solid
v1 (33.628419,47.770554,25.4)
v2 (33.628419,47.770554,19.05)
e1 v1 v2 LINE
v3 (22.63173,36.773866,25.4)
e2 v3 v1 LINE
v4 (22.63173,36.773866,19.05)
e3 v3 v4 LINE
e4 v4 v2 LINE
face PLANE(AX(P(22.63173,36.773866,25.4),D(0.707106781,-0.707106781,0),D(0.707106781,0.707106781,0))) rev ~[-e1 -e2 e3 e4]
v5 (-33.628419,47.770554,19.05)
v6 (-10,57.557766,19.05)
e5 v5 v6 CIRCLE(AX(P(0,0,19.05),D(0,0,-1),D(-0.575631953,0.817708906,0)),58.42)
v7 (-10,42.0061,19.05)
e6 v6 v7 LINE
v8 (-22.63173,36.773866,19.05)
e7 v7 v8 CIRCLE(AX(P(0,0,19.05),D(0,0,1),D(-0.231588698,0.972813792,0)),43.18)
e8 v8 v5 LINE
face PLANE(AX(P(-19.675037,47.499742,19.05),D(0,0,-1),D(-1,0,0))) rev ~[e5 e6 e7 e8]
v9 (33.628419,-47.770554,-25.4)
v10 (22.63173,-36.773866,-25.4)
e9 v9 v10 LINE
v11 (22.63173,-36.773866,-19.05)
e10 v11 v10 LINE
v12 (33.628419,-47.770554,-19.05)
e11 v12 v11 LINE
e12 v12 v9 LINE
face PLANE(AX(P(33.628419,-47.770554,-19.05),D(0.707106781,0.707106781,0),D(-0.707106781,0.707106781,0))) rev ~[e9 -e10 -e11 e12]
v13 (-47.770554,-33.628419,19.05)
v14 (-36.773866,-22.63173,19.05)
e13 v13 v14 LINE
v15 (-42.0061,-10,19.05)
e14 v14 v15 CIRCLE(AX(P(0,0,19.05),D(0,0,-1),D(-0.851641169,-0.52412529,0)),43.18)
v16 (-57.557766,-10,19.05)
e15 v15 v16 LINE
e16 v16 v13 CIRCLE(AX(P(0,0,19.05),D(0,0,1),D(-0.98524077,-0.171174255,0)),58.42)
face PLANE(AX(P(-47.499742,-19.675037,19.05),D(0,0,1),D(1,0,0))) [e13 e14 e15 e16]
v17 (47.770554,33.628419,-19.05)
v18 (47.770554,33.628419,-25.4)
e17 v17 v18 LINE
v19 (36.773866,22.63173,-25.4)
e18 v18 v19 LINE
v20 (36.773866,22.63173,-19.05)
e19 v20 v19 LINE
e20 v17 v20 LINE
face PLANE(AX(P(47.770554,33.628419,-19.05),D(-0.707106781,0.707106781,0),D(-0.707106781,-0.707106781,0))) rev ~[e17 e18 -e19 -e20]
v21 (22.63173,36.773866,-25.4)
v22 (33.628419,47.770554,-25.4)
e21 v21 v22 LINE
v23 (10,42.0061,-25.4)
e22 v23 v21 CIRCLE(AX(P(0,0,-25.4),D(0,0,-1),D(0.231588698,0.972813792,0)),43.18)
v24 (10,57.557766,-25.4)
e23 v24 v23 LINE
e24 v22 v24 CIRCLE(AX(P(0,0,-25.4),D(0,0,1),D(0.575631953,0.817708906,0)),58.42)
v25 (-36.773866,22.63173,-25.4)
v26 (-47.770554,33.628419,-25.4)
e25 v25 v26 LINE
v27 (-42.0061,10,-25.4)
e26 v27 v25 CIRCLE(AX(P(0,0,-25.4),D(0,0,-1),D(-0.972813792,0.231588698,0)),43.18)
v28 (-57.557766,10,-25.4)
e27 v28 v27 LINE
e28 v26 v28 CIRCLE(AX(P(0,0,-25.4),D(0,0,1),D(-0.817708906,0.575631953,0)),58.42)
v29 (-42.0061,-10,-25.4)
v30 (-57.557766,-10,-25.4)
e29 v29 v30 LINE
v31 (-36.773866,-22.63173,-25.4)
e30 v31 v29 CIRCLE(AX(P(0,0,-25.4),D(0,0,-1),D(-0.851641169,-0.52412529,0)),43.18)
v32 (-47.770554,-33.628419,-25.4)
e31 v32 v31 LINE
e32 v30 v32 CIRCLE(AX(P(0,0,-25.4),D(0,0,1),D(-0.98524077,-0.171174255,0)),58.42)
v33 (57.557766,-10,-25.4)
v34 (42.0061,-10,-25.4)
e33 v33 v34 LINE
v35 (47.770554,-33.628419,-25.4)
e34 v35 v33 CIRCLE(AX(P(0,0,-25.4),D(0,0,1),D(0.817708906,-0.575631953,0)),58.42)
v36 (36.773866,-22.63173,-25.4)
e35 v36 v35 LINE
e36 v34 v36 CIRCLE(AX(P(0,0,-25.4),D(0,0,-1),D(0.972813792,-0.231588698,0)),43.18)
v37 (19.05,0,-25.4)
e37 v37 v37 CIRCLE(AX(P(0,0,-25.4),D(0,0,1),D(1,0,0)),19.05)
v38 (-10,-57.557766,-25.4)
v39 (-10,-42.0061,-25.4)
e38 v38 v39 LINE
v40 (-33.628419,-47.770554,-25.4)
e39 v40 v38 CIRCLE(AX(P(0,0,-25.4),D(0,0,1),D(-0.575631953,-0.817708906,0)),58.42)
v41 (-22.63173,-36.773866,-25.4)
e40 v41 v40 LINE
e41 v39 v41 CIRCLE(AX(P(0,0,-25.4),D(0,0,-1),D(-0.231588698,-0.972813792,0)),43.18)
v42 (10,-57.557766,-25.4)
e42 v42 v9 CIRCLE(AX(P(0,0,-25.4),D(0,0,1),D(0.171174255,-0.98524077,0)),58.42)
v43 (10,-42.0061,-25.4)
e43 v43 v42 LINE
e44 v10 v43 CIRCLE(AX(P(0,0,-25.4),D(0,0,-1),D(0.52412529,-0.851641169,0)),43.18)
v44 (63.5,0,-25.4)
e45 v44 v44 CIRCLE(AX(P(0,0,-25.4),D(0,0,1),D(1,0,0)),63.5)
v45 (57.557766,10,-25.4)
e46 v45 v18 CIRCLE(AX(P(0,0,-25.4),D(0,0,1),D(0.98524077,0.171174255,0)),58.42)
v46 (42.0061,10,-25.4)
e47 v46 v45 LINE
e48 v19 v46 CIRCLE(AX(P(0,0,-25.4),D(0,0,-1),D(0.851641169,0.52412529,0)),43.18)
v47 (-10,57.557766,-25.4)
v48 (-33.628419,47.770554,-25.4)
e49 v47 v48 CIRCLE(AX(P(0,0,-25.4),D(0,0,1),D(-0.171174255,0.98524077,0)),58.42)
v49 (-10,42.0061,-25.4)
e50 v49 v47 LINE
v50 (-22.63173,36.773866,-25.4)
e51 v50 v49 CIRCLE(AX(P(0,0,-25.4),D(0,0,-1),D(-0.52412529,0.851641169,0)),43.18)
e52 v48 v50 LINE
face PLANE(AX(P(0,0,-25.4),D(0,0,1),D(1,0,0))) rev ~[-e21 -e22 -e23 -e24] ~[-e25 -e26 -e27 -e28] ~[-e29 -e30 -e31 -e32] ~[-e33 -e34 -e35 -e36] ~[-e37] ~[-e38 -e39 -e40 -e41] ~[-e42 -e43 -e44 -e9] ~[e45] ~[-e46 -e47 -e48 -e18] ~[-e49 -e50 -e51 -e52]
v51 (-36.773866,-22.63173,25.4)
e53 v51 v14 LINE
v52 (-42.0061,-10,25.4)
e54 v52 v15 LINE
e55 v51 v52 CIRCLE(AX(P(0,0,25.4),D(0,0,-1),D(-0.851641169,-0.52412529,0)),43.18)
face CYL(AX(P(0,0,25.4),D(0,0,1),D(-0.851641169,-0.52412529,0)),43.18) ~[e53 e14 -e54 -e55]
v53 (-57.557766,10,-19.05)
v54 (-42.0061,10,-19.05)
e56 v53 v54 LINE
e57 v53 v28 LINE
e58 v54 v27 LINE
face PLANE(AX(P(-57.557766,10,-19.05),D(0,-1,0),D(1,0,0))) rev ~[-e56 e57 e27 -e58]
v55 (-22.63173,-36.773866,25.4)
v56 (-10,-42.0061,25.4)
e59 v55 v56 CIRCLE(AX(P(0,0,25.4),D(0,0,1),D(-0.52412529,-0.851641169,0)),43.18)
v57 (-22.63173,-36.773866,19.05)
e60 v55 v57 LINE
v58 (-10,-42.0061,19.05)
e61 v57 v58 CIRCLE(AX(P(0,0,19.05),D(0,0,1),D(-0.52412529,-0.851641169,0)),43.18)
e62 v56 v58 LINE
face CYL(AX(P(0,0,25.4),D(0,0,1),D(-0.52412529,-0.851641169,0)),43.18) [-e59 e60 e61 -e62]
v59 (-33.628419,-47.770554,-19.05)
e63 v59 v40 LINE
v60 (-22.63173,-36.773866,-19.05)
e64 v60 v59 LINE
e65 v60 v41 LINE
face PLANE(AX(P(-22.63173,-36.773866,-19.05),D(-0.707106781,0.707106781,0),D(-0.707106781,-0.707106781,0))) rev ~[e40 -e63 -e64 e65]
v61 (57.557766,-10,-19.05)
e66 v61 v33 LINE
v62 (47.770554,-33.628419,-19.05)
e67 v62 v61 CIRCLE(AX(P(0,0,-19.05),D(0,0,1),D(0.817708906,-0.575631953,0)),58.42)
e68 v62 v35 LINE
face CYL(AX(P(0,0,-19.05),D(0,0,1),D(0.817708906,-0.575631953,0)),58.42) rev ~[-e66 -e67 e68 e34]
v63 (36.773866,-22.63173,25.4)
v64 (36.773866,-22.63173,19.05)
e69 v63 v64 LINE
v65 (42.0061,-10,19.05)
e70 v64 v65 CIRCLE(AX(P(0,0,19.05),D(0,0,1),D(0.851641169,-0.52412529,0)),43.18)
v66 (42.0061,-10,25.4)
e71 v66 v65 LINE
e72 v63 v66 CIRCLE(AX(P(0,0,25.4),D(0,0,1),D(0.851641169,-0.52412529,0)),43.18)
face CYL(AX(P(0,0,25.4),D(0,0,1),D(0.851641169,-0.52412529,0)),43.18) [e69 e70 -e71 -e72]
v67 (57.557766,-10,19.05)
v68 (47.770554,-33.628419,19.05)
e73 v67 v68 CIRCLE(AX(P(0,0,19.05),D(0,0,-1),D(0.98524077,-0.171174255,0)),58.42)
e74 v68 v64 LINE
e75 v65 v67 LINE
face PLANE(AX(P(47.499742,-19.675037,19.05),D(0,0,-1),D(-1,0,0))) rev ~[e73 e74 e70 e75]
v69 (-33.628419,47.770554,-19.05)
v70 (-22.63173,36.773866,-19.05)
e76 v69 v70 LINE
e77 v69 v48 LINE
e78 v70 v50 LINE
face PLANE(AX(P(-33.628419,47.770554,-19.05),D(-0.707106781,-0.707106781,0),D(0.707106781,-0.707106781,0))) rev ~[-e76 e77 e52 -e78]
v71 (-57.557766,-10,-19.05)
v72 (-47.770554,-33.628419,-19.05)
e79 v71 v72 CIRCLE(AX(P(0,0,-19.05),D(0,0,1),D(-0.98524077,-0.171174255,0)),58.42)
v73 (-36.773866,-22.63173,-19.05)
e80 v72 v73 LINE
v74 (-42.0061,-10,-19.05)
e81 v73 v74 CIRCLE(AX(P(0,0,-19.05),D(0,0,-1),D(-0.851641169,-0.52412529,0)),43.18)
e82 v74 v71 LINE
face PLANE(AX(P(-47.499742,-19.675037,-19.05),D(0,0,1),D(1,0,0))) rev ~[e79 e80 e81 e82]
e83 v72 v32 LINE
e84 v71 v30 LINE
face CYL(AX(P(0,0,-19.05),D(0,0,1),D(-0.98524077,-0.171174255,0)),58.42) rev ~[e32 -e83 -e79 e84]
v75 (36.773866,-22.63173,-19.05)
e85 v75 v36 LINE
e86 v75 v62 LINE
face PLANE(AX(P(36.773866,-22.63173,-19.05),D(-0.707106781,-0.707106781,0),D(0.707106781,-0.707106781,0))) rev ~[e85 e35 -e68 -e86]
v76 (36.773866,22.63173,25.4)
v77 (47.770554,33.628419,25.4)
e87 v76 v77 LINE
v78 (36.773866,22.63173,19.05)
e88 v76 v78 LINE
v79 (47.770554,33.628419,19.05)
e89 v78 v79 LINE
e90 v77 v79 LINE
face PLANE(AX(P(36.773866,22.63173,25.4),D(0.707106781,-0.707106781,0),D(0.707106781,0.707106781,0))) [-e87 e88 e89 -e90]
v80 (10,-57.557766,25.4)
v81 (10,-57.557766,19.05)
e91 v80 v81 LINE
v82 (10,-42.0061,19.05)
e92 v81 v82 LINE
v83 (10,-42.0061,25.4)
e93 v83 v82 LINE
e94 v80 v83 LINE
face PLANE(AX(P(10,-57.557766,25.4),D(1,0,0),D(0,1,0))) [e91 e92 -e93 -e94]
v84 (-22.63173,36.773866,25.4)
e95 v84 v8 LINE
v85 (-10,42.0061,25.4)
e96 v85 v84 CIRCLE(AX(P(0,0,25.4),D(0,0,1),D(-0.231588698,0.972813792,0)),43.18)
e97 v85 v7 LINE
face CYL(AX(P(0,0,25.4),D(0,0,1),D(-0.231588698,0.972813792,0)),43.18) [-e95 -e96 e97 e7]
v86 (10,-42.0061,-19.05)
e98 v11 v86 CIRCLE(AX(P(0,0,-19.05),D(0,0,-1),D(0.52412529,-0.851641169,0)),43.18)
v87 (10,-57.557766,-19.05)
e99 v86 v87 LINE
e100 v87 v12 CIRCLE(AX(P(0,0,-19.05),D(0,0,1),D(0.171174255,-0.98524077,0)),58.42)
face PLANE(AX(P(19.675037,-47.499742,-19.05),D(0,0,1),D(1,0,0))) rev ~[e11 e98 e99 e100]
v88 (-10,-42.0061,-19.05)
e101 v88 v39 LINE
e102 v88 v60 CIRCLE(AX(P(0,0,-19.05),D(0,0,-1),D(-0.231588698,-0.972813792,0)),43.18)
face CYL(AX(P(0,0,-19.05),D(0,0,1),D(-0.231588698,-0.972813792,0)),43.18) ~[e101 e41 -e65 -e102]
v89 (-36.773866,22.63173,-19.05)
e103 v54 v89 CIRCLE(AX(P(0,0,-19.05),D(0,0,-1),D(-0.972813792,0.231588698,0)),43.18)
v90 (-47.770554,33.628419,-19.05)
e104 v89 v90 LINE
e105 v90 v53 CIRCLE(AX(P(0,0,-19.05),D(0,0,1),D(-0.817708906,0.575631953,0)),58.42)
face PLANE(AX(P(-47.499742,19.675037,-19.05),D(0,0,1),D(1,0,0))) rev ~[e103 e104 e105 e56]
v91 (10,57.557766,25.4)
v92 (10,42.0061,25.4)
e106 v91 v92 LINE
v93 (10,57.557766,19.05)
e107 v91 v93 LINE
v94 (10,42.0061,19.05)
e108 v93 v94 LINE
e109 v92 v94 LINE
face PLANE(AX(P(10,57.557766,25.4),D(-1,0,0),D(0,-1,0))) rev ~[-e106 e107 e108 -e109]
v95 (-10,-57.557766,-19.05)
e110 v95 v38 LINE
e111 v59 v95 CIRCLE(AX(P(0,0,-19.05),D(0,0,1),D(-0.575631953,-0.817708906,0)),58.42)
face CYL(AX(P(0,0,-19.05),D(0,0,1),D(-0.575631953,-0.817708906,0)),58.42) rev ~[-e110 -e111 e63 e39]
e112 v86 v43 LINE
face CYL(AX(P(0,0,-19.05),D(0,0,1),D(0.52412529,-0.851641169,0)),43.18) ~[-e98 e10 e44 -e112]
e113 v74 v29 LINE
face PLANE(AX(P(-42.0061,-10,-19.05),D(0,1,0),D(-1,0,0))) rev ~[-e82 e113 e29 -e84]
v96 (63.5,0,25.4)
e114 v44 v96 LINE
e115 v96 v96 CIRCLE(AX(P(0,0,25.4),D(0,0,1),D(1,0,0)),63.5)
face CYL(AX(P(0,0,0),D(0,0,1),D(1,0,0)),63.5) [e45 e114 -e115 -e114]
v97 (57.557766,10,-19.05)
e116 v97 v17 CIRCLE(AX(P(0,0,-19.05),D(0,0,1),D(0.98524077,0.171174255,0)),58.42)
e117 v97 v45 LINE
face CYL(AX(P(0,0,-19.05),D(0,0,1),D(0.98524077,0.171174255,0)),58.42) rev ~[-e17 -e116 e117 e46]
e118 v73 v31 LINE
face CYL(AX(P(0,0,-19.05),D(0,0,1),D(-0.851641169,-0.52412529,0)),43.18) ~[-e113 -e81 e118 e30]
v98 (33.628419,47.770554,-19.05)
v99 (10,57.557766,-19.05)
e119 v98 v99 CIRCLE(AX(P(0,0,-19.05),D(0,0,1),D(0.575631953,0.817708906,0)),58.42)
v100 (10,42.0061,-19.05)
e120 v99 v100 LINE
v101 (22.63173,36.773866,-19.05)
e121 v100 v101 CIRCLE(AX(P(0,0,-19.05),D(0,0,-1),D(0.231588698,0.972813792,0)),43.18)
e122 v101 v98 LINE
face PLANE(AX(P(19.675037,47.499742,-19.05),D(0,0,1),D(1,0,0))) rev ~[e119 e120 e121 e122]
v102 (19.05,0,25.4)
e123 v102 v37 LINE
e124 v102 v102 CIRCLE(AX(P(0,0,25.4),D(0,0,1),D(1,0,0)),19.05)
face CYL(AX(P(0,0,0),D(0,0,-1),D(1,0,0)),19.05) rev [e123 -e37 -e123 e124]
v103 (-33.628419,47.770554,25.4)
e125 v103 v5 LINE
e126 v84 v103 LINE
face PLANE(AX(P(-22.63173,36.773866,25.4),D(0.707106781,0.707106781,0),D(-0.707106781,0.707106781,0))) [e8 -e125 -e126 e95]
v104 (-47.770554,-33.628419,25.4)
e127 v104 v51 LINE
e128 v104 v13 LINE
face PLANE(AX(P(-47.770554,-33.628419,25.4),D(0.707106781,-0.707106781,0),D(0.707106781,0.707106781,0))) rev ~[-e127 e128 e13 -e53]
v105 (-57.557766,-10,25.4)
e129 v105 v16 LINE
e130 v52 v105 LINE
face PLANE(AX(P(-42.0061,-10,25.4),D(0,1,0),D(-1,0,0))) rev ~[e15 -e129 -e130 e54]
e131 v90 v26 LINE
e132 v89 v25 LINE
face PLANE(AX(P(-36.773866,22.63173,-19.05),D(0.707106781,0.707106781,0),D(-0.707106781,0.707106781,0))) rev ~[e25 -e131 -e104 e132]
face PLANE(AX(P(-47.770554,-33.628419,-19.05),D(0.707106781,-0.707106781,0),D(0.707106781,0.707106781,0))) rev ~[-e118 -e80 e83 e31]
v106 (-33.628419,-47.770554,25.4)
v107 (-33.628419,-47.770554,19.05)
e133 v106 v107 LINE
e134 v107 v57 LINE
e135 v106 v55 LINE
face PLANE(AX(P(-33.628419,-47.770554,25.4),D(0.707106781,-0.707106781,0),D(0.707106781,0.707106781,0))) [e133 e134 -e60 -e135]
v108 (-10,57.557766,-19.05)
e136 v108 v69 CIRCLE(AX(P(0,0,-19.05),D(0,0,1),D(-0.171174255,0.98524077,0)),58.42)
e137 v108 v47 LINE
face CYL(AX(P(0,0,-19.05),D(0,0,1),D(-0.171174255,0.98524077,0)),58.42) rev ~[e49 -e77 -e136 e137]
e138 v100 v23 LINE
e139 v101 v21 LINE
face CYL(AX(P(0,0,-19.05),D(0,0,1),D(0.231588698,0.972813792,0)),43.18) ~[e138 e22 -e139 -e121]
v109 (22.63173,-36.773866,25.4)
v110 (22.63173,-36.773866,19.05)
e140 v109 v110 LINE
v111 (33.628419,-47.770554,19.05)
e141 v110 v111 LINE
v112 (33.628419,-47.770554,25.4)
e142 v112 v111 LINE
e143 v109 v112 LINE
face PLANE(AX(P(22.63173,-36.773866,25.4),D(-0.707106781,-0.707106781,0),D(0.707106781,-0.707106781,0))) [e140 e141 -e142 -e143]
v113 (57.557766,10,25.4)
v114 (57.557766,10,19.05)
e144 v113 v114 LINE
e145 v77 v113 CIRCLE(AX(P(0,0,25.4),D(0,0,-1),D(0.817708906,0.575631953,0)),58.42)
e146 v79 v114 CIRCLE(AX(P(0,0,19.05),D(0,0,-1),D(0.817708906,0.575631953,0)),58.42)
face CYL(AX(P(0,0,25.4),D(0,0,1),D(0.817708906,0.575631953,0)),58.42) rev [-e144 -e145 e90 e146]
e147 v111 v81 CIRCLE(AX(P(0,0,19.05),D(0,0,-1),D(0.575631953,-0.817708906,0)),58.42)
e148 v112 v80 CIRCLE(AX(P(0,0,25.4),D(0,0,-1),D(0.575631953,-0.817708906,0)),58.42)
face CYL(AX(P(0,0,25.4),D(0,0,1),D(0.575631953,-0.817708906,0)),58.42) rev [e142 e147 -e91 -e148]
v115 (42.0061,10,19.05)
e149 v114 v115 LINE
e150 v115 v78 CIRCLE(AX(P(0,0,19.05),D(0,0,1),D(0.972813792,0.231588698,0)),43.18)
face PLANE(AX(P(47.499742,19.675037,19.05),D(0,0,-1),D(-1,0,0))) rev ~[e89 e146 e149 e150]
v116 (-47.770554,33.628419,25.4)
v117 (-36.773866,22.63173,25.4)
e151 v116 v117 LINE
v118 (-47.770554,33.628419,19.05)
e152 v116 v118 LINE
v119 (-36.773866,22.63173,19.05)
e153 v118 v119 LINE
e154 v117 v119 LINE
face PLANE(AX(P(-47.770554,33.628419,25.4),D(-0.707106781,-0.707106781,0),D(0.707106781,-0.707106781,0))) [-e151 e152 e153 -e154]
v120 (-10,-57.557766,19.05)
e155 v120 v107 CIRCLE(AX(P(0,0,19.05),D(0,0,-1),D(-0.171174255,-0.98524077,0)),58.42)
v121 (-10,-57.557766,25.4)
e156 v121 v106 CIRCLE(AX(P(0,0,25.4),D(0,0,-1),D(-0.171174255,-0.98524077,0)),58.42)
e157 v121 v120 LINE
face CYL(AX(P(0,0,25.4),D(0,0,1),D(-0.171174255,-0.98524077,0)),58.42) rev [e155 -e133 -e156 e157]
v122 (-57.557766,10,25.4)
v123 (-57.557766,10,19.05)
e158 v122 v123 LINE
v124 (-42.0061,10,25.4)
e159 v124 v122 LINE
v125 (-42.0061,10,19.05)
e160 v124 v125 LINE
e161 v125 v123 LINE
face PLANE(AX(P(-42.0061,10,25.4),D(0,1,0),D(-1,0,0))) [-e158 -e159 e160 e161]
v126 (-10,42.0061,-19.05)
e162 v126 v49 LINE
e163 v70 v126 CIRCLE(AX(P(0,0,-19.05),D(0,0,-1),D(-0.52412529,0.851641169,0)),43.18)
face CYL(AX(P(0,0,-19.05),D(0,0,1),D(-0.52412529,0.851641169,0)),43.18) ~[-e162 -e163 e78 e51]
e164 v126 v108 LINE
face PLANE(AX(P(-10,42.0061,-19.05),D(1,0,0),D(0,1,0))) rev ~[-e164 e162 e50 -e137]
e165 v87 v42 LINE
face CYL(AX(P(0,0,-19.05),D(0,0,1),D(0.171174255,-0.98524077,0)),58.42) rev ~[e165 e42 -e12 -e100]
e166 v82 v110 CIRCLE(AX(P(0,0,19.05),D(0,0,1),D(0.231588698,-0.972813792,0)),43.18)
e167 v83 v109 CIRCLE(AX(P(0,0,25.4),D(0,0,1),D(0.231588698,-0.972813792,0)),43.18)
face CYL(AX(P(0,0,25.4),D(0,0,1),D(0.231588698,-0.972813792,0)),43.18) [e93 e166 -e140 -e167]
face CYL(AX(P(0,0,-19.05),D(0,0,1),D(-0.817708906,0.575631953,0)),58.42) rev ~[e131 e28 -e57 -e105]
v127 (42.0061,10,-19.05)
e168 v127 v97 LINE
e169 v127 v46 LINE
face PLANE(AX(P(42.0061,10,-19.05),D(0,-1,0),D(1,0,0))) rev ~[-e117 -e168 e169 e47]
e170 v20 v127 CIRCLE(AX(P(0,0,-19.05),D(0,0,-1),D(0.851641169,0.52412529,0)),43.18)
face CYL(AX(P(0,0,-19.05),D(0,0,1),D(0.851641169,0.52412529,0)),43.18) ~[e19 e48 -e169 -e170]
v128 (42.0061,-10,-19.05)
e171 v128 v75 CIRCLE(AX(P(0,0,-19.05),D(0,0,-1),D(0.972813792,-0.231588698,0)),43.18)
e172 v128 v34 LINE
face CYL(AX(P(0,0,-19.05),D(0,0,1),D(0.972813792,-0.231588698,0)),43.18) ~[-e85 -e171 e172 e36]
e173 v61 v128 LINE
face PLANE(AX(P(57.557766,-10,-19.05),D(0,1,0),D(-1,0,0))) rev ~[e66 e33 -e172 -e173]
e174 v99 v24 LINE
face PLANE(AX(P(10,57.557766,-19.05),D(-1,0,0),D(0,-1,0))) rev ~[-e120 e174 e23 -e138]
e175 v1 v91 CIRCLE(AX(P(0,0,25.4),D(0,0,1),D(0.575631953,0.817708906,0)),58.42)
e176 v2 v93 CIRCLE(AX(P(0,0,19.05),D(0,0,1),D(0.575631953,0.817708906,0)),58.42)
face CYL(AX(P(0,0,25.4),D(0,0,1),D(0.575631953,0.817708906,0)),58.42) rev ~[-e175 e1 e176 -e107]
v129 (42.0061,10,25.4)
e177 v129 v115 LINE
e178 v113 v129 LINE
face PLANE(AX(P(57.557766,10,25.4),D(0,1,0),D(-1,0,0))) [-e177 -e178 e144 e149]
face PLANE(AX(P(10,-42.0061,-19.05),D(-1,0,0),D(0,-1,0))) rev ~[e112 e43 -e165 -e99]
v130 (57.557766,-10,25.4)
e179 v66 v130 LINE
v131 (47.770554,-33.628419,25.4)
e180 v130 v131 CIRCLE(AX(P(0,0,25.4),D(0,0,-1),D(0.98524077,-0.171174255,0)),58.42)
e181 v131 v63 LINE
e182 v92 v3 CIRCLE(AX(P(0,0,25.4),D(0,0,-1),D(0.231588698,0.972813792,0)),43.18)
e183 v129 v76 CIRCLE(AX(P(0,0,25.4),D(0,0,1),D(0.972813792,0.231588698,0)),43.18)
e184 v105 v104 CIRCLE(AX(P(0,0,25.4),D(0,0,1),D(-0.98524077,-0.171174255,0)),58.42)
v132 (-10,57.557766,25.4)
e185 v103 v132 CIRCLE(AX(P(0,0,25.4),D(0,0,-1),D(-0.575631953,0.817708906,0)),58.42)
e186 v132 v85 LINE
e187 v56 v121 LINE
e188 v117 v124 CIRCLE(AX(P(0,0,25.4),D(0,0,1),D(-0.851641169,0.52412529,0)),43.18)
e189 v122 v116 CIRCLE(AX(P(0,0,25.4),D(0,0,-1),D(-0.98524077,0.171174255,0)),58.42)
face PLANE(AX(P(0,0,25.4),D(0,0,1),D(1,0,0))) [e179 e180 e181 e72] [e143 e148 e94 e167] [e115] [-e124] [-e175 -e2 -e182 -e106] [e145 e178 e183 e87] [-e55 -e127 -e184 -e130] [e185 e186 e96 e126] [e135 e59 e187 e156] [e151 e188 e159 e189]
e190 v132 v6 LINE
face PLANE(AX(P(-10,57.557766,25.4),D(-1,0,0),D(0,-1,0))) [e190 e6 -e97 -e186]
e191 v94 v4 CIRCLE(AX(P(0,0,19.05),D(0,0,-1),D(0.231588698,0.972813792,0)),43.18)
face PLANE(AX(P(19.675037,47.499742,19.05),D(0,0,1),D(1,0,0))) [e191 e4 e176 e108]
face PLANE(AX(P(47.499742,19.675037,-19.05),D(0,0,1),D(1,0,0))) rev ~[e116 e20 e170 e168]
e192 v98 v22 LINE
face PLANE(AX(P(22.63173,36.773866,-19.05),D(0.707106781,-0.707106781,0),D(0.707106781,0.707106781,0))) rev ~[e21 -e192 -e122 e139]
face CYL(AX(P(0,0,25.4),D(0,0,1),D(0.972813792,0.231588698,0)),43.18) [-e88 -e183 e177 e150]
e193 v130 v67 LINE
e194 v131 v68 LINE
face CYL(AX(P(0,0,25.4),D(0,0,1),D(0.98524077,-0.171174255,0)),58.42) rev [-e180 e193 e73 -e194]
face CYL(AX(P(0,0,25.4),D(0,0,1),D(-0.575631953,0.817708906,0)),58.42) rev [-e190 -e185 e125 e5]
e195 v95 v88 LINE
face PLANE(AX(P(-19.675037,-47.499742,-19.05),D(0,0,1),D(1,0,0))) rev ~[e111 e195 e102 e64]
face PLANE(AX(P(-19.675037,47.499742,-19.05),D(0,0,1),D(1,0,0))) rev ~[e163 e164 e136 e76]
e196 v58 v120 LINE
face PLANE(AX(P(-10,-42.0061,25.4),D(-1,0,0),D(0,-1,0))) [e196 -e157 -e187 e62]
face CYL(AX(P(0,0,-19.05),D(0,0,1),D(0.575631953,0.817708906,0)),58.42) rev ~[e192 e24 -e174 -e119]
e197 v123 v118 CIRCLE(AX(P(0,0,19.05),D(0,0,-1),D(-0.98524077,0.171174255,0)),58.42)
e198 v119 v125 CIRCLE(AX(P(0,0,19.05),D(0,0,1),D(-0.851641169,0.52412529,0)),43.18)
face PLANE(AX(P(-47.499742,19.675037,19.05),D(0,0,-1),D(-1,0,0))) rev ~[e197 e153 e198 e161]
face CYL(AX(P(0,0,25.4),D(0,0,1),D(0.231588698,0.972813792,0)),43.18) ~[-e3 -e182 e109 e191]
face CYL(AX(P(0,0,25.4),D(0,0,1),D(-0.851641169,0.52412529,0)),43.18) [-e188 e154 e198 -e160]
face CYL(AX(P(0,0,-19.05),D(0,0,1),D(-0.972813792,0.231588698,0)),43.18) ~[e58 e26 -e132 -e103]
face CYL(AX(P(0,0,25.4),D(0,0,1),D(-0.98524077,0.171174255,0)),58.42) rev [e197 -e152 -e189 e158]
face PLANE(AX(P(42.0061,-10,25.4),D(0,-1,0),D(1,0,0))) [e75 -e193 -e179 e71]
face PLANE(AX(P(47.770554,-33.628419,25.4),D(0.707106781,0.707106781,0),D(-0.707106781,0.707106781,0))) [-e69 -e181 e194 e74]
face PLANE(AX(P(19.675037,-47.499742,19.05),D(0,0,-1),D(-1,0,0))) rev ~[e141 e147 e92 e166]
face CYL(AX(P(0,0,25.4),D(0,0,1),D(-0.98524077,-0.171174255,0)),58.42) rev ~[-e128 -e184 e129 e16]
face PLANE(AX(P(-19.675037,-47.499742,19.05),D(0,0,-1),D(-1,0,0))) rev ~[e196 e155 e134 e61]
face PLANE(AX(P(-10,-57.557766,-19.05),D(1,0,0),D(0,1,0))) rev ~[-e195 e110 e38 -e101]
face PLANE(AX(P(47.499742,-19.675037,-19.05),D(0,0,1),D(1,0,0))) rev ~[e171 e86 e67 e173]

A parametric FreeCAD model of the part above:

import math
import FreeCAD as App
import Part
import Sketcher

V = App.Vector
Q = App.Units.Quantity

doc = App.newDocument("Part")
body = doc.addObject("PartDesign::Body", "Body")

# Sketch on XY plane
sketch1 = body.newObject("Sketcher::SketchObject", "Sketch")
sketch1.AttachmentSupport = (doc.getObject("XY_Plane"), [""])
sketch1.MapMode = "FlatFace"
sketch1.addGeometry(Part.Circle(V(0, 0, 0), V(0, 0, 1), 63.5), False)
sketch1.addGeometry(Part.Circle(V(0, 0, 0), V(0, 0, 1), 19.05), False)
sketch1.addConstraint(Sketcher.Constraint("Coincident", 0, 3, -1, 1))
sketch1.addConstraint(Sketcher.Constraint("Coincident", 1, 3, -1, 1))
sketch1.addConstraint(Sketcher.Constraint("Diameter", 0, Q("5 in")))
sketch1.addConstraint(Sketcher.Constraint("Diameter", 1, Q("1.5 in")))
pad1 = body.newObject("PartDesign::Pad", "Pad")
pad1.Profile = sketch1
pad1.Length = Q("2 in")
pad1.Midplane = True

# Sketch on XY plane
sketch2 = body.newObject("Sketcher::SketchObject", "Sketch001")
sketch2.AttachmentSupport = (doc.getObject("XY_Plane"), [""])
sketch2.MapMode = "FlatFace"
sketch2.AttachmentOffset = App.Placement(V(0, 0, 1 * 25.4), App.Rotation())
sketch2.addGeometry(Part.LineSegment(V(47.770554, 33.628419, 0), V(36.773866, 22.63173, 0)), False)
sketch2.addGeometry(Part.ArcOfCircle(Part.Circle(V(0, 0, 0), V(0, 0, 1), 43.18), math.radians(13.390623), math.radians(31.609377)), False)
sketch2.addGeometry(Part.LineSegment(V(42.0061, 10, 0), V(57.557766, 10, 0)), False)
sketch2.addGeometry(Part.ArcOfCircle(Part.Circle(V(0, 0, 0), V(0, 0, 1), 58.42), math.radians(9.8561), math.radians(35.1439)), False)
sketch2.addGeometry(Part.LineSegment(V(36.773866, -22.63173, 0), V(47.770554, -33.628419, 0)), False)
sketch2.addGeometry(Part.ArcOfCircle(Part.Circle(V(0, 0, 0), V(0, 0, 1), 58.42), math.radians(-35.1439), math.radians(-9.8561)), False)
sketch2.addGeometry(Part.LineSegment(V(57.557766, -10, 0), V(42.0061, -10, 0)), False)
sketch2.addGeometry(Part.ArcOfCircle(Part.Circle(V(0, 0, 0), V(0, 0, 1), 43.18), math.radians(-31.609377), math.radians(-13.390623)), False)
sketch2.addGeometry(Part.LineSegment(V(10, -42.0061, 0), V(10, -57.557766, 0)), False)
sketch2.addGeometry(Part.ArcOfCircle(Part.Circle(V(0, 0, 0), V(0, 0, 1), 58.42), math.radians(-80.1439), math.radians(-54.8561)), False)
sketch2.addGeometry(Part.LineSegment(V(33.628419, -47.770554, 0), V(22.63173, -36.773866, 0)), False)
sketch2.addGeometry(Part.ArcOfCircle(Part.Circle(V(0, 0, 0), V(0, 0, 1), 43.18), math.radians(-76.609377), math.radians(-58.390623)), False)
sketch2.addGeometry(Part.LineSegment(V(-22.63173, -36.773866, 0), V(-33.628419, -47.770554, 0)), False)
sketch2.addGeometry(Part.ArcOfCircle(Part.Circle(V(0, 0, 0), V(0, 0, 1), 58.42), math.radians(-125.1439), math.radians(-99.8561)), False)
sketch2.addGeometry(Part.LineSegment(V(-10, -57.557766, 0), V(-10, -42.0061, 0)), False)
sketch2.addGeometry(Part.ArcOfCircle(Part.Circle(V(0, 0, 0), V(0, 0, 1), 43.18), math.radians(-121.609377), math.radians(-103.390623)), False)
sketch2.addGeometry(Part.LineSegment(V(-57.557766, 10, 0), V(-42.0061, 10, 0)), False)
sketch2.addGeometry(Part.ArcOfCircle(Part.Circle(V(0, 0, 0), V(0, 0, 1), 43.18), math.radians(148.390623), math.radians(166.609377)), False)
sketch2.addGeometry(Part.LineSegment(V(-36.773866, 22.63173, 0), V(-47.770554, 33.628419, 0)), False)
sketch2.addGeometry(Part.ArcOfCircle(Part.Circle(V(0, 0, 0), V(0, 0, 1), 58.42), math.radians(144.8561), math.radians(170.1439)), False)
sketch2.addGeometry(Part.LineSegment(V(22.63173, 36.773866, 0), V(33.628419, 47.770554, 0)), False)
sketch2.addGeometry(Part.ArcOfCircle(Part.Circle(V(0, 0, 0), V(0, 0, 1), 58.42), math.radians(54.8561), math.radians(80.1439)), False)
sketch2.addGeometry(Part.LineSegment(V(10, 57.557766, 0), V(10, 42.0061, 0)), False)
sketch2.addGeometry(Part.ArcOfCircle(Part.Circle(V(0, 0, 0), V(0, 0, 1), 43.18), math.radians(58.390623), math.radians(76.609377)), False)
sketch2.addGeometry(Part.LineSegment(V(-47.770554, -33.628419, 0), V(-36.773866, -22.63173, 0)), False)
sketch2.addGeometry(Part.ArcOfCircle(Part.Circle(V(0, 0, 0), V(0, 0, 1), 43.18), math.radians(-166.609377), math.radians(-148.390623)), False)
sketch2.addGeometry(Part.LineSegment(V(-42.0061, -10, 0), V(-57.557766, -10, 0)), False)
sketch2.addGeometry(Part.ArcOfCircle(Part.Circle(V(0, 0, 0), V(0, 0, 1), 58.42), math.radians(-170.1439), math.radians(-144.8561)), False)
sketch2.addGeometry(Part.LineSegment(V(-33.628419, 47.770554, 0), V(-22.63173, 36.773866, 0)), False)
sketch2.addGeometry(Part.ArcOfCircle(Part.Circle(V(0, 0, 0), V(0, 0, 1), 43.18), math.radians(103.390623), math.radians(121.609377)), False)
sketch2.addGeometry(Part.LineSegment(V(-10, 42.0061, 0), V(-10, 57.557766, 0)), False)
sketch2.addGeometry(Part.ArcOfCircle(Part.Circle(V(0, 0, 0), V(0, 0, 1), 58.42), math.radians(99.8561), math.radians(125.1439)), False)
sketch2.addConstraint(Sketcher.Constraint("Coincident", 0, 2, 1, 2))
sketch2.addConstraint(Sketcher.Constraint("Coincident", 1, 1, 2, 1))
sketch2.addConstraint(Sketcher.Constraint("Coincident", 2, 2, 3, 1))
sketch2.addConstraint(Sketcher.Constraint("Coincident", 3, 2, 0, 1))
sketch2.addConstraint(Sketcher.Constraint("Coincident", 4, 2, 5, 1))
sketch2.addConstraint(Sketcher.Constraint("Coincident", 5, 2, 6, 1))
sketch2.addConstraint(Sketcher.Constraint("Coincident", 6, 2, 7, 2))
sketch2.addConstraint(Sketcher.Constraint("Coincident", 7, 1, 4, 1))
sketch2.addConstraint(Sketcher.Constraint("Coincident", 8, 2, 9, 1))
sketch2.addConstraint(Sketcher.Constraint("Coincident", 9, 2, 10, 1))
sketch2.addConstraint(Sketcher.Constraint("Coincident", 10, 2, 11, 2))
sketch2.addConstraint(Sketcher.Constraint("Coincident", 11, 1, 8, 1))
sketch2.addConstraint(Sketcher.Constraint("Coincident", 12, 2, 13, 1))
sketch2.addConstraint(Sketcher.Constraint("Coincident", 13, 2, 14, 1))
sketch2.addConstraint(Sketcher.Constraint("Coincident", 14, 2, 15, 2))
sketch2.addConstraint(Sketcher.Constraint("Coincident", 15, 1, 12, 1))
sketch2.addConstraint(Sketcher.Constraint("Coincident", 16, 2, 17, 2))
sketch2.addConstraint(Sketcher.Constraint("Coincident", 17, 1, 18, 1))
sketch2.addConstraint(Sketcher.Constraint("Coincident", 18, 2, 19, 1))
sketch2.addConstraint(Sketcher.Constraint("Coincident", 19, 2, 16, 1))
sketch2.addConstraint(Sketcher.Constraint("Coincident", 20, 2, 21, 1))
sketch2.addConstraint(Sketcher.Constraint("Coincident", 21, 2, 22, 1))
sketch2.addConstraint(Sketcher.Constraint("Coincident", 22, 2, 23, 2))
sketch2.addConstraint(Sketcher.Constraint("Coincident", 23, 1, 20, 1))
sketch2.addConstraint(Sketcher.Constraint("Coincident", 24, 2, 25, 2))
sketch2.addConstraint(Sketcher.Constraint("Coincident", 25, 1, 26, 1))
sketch2.addConstraint(Sketcher.Constraint("Coincident", 26, 2, 27, 1))
sketch2.addConstraint(Sketcher.Constraint("Coincident", 27, 2, 24, 1))
sketch2.addConstraint(Sketcher.Constraint("Coincident", 28, 2, 29, 2))
sketch2.addConstraint(Sketcher.Constraint("Coincident", 29, 1, 30, 1))
sketch2.addConstraint(Sketcher.Constraint("Coincident", 30, 2, 31, 1))
sketch2.addConstraint(Sketcher.Constraint("Coincident", 31, 2, 28, 1))
sketch2.addConstraint(Sketcher.Constraint("Horizontal", 2))
sketch2.addConstraint(Sketcher.Constraint("Horizontal", 6))
sketch2.addConstraint(Sketcher.Constraint("Vertical", 8))
sketch2.addConstraint(Sketcher.Constraint("Vertical", 14))
sketch2.addConstraint(Sketcher.Constraint("Horizontal", 16))
sketch2.addConstraint(Sketcher.Constraint("Vertical", 22))
sketch2.addConstraint(Sketcher.Constraint("Horizontal", 26))
sketch2.addConstraint(Sketcher.Constraint("Vertical", 30))
sketch2.addConstraint(Sketcher.Constraint("Coincident", 1, 3, -1, 1))
sketch2.addConstraint(Sketcher.Constraint("Coincident", 3, 3, -1, 1))
sketch2.addConstraint(Sketcher.Constraint("Coincident", 5, 3, -1, 1))
sketch2.addConstraint(Sketcher.Constraint("Coincident", 7, 3, -1, 1))
sketch2.addConstraint(Sketcher.Constraint("Coincident", 9, 3, -1, 1))
sketch2.addConstraint(Sketcher.Constraint("Coincident", 11, 3, -1, 1))
sketch2.addConstraint(Sketcher.Constraint("Coincident", 13, 3, -1, 1))
sketch2.addConstraint(Sketcher.Constraint("Coincident", 15, 3, -1, 1))
sketch2.addConstraint(Sketcher.Constraint("Coincident", 17, 3, -1, 1))
sketch2.addConstraint(Sketcher.Constraint("Coincident", 19, 3, -1, 1))
sketch2.addConstraint(Sketcher.Constraint("Coincident", 21, 3, -1, 1))
sketch2.addConstraint(Sketcher.Constraint("Coincident", 23, 3, -1, 1))
sketch2.addConstraint(Sketcher.Constraint("Coincident", 25, 3, -1, 1))
sketch2.addConstraint(Sketcher.Constraint("Coincident", 27, 3, -1, 1))
sketch2.addConstraint(Sketcher.Constraint("Coincident", 29, 3, -1, 1))
sketch2.addConstraint(Sketcher.Constraint("Coincident", 31, 3, -1, 1))
sketch2.addConstraint(Sketcher.Constraint("Equal", 3, 5))
sketch2.addConstraint(Sketcher.Constraint("Equal", 1, 7))
sketch2.addConstraint(Sketcher.Constraint("Equal", 5, 9))
sketch2.addConstraint(Sketcher.Constraint("Equal", 7, 11))
sketch2.addConstraint(Sketcher.Constraint("Equal", 9, 13))
sketch2.addConstraint(Sketcher.Constraint("Equal", 11, 15))
sketch2.addConstraint(Sketcher.Constraint("Equal", 15, 17))
sketch2.addConstraint(Sketcher.Constraint("Equal", 13, 19))
sketch2.addConstraint(Sketcher.Constraint("Equal", 19, 21))
sketch2.addConstraint(Sketcher.Constraint("Equal", 17, 23))
sketch2.addConstraint(Sketcher.Constraint("Equal", 23, 25))
sketch2.addConstraint(Sketcher.Constraint("Equal", 21, 27))
sketch2.addConstraint(Sketcher.Constraint("Equal", 25, 29))
sketch2.addConstraint(Sketcher.Constraint("Equal", 27, 31))
sketch2.addConstraint(Sketcher.Constraint("Perpendicular", 0, 4))
sketch2.addConstraint(Sketcher.Constraint("Parallel", 4, 10))
sketch2.addConstraint(Sketcher.Constraint("Perpendicular", 10, 12))
sketch2.addConstraint(Sketcher.Constraint("Perpendicular", 12, 18))
sketch2.addConstraint(Sketcher.Constraint("Perpendicular", 18, 20))
sketch2.addConstraint(Sketcher.Constraint("Parallel", 20, 24))
sketch2.addConstraint(Sketcher.Constraint("Perpendicular", 24, 28))
sketch2.addConstraint(Sketcher.Constraint("Horizontal", 9, 2, 12, 2))
sketch2.addConstraint(Sketcher.Constraint("Horizontal", 8, 2, 13, 2))
sketch2.addConstraint(Sketcher.Constraint("Horizontal", 10, 2, 15, 1))
sketch2.addConstraint(Sketcher.Constraint("Horizontal", 2, 2, 16, 2))
sketch2.addConstraint(Sketcher.Constraint("Horizontal", 0, 2, 17, 1))
sketch2.addConstraint(Sketcher.Constraint("Horizontal", 7, 1, 24, 2))
sketch2.addConstraint(Sketcher.Constraint("Horizontal", 6, 2, 25, 1))
sketch2.addConstraint(Sketcher.Constraint("Horizontal", 23, 1, 28, 2))
sketch2.addConstraint(Sketcher.Constraint("Horizontal", 22, 2, 29, 1))
sketch2.addConstraint(Sketcher.Constraint("Vertical", 3, 2, 4, 2))
sketch2.addConstraint(Sketcher.Constraint("Vertical", 2, 2, 5, 2))
sketch2.addConstraint(Sketcher.Constraint("Vertical", 9, 2, 20, 2))
sketch2.addConstraint(Sketcher.Constraint("Vertical", 11, 1, 21, 2))
sketch2.addConstraint(Sketcher.Constraint("Equal", 26, 8))
sketch2.addConstraint(Sketcher.Constraint("Equal", 4, 10))
sketch2.addConstraint(Sketcher.Constraint("Radius", 1, Q("1.7 in")))
sketch2.addConstraint(Sketcher.Constraint("Radius", 3, Q("2.3 in")))
sketch2.addConstraint(Sketcher.Constraint("DistanceX", -1, 1, 1, 1, Q("42.0061 mm")))
sketch2.addConstraint(Sketcher.Constraint("DistanceX", 0, 2, 2, 2, Q("20.7839 mm")))
pocket1 = body.newObject("PartDesign::Pocket", "Pocket")
pocket1.Profile = sketch2
pocket1.Length = Q("0.25 in")

# Sketch on XY plane
sketch3 = body.newObject("Sketcher::SketchObject", "Sketch002")
sketch3.AttachmentSupport = (doc.getObject("XY_Plane"), [""])
sketch3.MapMode = "FlatFace"
sketch3.AttachmentOffset = App.Placement(V(0, 0, -0.75 * 25.4), App.Rotation())
sketch3.addGeometry(Part.LineSegment(V(47.770554, -33.628419, 0), V(36.773866, -22.63173, 0)), False)
sketch3.addGeometry(Part.ArcOfCircle(Part.Circle(V(0, 0, 0), V(0, 0, 1), 43.18), math.radians(-31.609377), math.radians(-13.390623)), False)
sketch3.addGeometry(Part.LineSegment(V(42.0061, -10, 0), V(57.557766, -10, 0)), False)
sketch3.addGeometry(Part.ArcOfCircle(Part.Circle(V(0, 0, 0), V(0, 0, 1), 58.42), math.radians(-35.1439), math.radians(-9.8561)), False)
sketch3.addGeometry(Part.LineSegment(V(10, -57.557766, 0), V(10, -42.0061, 0)), False)
sketch3.addGeometry(Part.ArcOfCircle(Part.Circle(V(0, 0, 0), V(0, 0, 1), 43.18), math.radians(-76.609377), math.radians(-58.390623)), False)
sketch3.addGeometry(Part.LineSegment(V(22.63173, -36.773866, 0), V(33.628419, -47.770554, 0)), False)
sketch3.addGeometry(Part.ArcOfCircle(Part.Circle(V(0, 0, 0), V(0, 0, 1), 58.42), math.radians(-80.1439), math.radians(-54.8561)), False)
sketch3.addGeometry(Part.LineSegment(V(-33.628419, -47.770554, 0), V(-22.63173, -36.773866, 0)), False)
sketch3.addGeometry(Part.ArcOfCircle(Part.Circle(V(0, 0, 0), V(0, 0, 1), 43.18), math.radians(-121.609377), math.radians(-103.390623)), False)
sketch3.addGeometry(Part.LineSegment(V(-10, -42.0061, 0), V(-10, -57.557766, 0)), False)
sketch3.addGeometry(Part.ArcOfCircle(Part.Circle(V(0, 0, 0), V(0, 0, 1), 58.42), math.radians(-125.1439), math.radians(-99.8561)), False)
sketch3.addGeometry(Part.LineSegment(V(-57.557766, -10, 0), V(-42.0061, -10, 0)), False)
sketch3.addGeometry(Part.ArcOfCircle(Part.Circle(V(0, 0, 0), V(0, 0, 1), 43.18), math.radians(-166.609377), math.radians(-148.390623)), False)
sketch3.addGeometry(Part.LineSegment(V(-36.773866, -22.63173, 0), V(-47.770554, -33.628419, 0)), False)
sketch3.addGeometry(Part.ArcOfCircle(Part.Circle(V(0, 0, 0), V(0, 0, 1), 58.42), math.radians(-170.1439), math.radians(-144.8561)), False)
sketch3.addGeometry(Part.LineSegment(V(-47.770554, 33.628419, 0), V(-36.773866, 22.63173, 0)), False)
sketch3.addGeometry(Part.ArcOfCircle(Part.Circle(V(0, 0, 0), V(0, 0, 1), 43.18), math.radians(148.390623), math.radians(166.609377)), False)
sketch3.addGeometry(Part.LineSegment(V(-42.0061, 10, 0), V(-57.557766, 10, 0)), False)
sketch3.addGeometry(Part.ArcOfCircle(Part.Circle(V(0, 0, 0), V(0, 0, 1), 58.42), math.radians(144.8561), math.radians(170.1439)), False)
sketch3.addGeometry(Part.LineSegment(V(-10, 57.557766, 0), V(-10, 42.0061, 0)), False)
sketch3.addGeometry(Part.ArcOfCircle(Part.Circle(V(0, 0, 0), V(0, 0, 1), 43.18), math.radians(103.390623), math.radians(121.609377)), False)
sketch3.addGeometry(Part.LineSegment(V(-22.63173, 36.773866, 0), V(-33.628419, 47.770554, 0)), False)
sketch3.addGeometry(Part.ArcOfCircle(Part.Circle(V(0, 0, 0), V(0, 0, 1), 58.42), math.radians(99.8561), math.radians(125.1439)), False)
sketch3.addGeometry(Part.LineSegment(V(33.628419, 47.770554, 0), V(22.63173, 36.773866, 0)), False)
sketch3.addGeometry(Part.ArcOfCircle(Part.Circle(V(0, 0, 0), V(0, 0, 1), 43.18), math.radians(58.390623), math.radians(76.609377)), False)
sketch3.addGeometry(Part.LineSegment(V(10, 42.0061, 0), V(10, 57.557766, 0)), False)
sketch3.addGeometry(Part.ArcOfCircle(Part.Circle(V(0, 0, 0), V(0, 0, 1), 58.42), math.radians(54.8561), math.radians(80.1439)), False)
sketch3.addGeometry(Part.LineSegment(V(57.557766, 10, 0), V(42.0061, 10, 0)), False)
sketch3.addGeometry(Part.ArcOfCircle(Part.Circle(V(0, 0, 0), V(0, 0, 1), 43.18), math.radians(13.390623), math.radians(31.609377)), False)
sketch3.addGeometry(Part.LineSegment(V(36.773866, 22.63173, 0), V(47.770554, 33.628419, 0)), False)
sketch3.addGeometry(Part.ArcOfCircle(Part.Circle(V(0, 0, 0), V(0, 0, 1), 58.42), math.radians(9.8561), math.radians(35.1439)), False)
sketch3.addConstraint(Sketcher.Constraint("Coincident", 0, 2, 1, 1))
sketch3.addConstraint(Sketcher.Constraint("Coincident", 1, 2, 2, 1))
sketch3.addConstraint(Sketcher.Constraint("Coincident", 2, 2, 3, 2))
sketch3.addConstraint(Sketcher.Constraint("Coincident", 3, 1, 0, 1))
sketch3.addConstraint(Sketcher.Constraint("Coincident", 4, 2, 5, 1))
sketch3.addConstraint(Sketcher.Constraint("Coincident", 5, 2, 6, 1))
sketch3.addConstraint(Sketcher.Constraint("Coincident", 6, 2, 7, 2))
sketch3.addConstraint(Sketcher.Constraint("Coincident", 7, 1, 4, 1))
sketch3.addConstraint(Sketcher.Constraint("Coincident", 8, 2, 9, 1))
sketch3.addConstraint(Sketcher.Constraint("Coincident", 9, 2, 10, 1))
sketch3.addConstraint(Sketcher.Constraint("Coincident", 10, 2, 11, 2))
sketch3.addConstraint(Sketcher.Constraint("Coincident", 11, 1, 8, 1))
sketch3.addConstraint(Sketcher.Constraint("Coincident", 12, 2, 13, 1))
sketch3.addConstraint(Sketcher.Constraint("Coincident", 13, 2, 14, 1))
sketch3.addConstraint(Sketcher.Constraint("Coincident", 14, 2, 15, 2))
sketch3.addConstraint(Sketcher.Constraint("Coincident", 15, 1, 12, 1))
sketch3.addConstraint(Sketcher.Constraint("Coincident", 16, 2, 17, 1))
sketch3.addConstraint(Sketcher.Constraint("Coincident", 17, 2, 18, 1))
sketch3.addConstraint(Sketcher.Constraint("Coincident", 18, 2, 19, 2))
sketch3.addConstraint(Sketcher.Constraint("Coincident", 19, 1, 16, 1))
sketch3.addConstraint(Sketcher.Constraint("Coincident", 20, 2, 21, 1))
sketch3.addConstraint(Sketcher.Constraint("Coincident", 21, 2, 22, 1))
sketch3.addConstraint(Sketcher.Constraint("Coincident", 22, 2, 23, 2))
sketch3.addConstraint(Sketcher.Constraint("Coincident", 23, 1, 20, 1))
sketch3.addConstraint(Sketcher.Constraint("Coincident", 24, 2, 25, 1))
sketch3.addConstraint(Sketcher.Constraint("Coincident", 25, 2, 26, 1))
sketch3.addConstraint(Sketcher.Constraint("Coincident", 26, 2, 27, 2))
sketch3.addConstraint(Sketcher.Constraint("Coincident", 27, 1, 24, 1))
sketch3.addConstraint(Sketcher.Constraint("Coincident", 28, 2, 29, 1))
sketch3.addConstraint(Sketcher.Constraint("Coincident", 29, 2, 30, 1))
sketch3.addConstraint(Sketcher.Constraint("Coincident", 30, 2, 31, 2))
sketch3.addConstraint(Sketcher.Constraint("Coincident", 31, 1, 28, 1))
sketch3.addConstraint(Sketcher.Constraint("Horizontal", 2))
sketch3.addConstraint(Sketcher.Constraint("Vertical", 4))
sketch3.addConstraint(Sketcher.Constraint("Vertical", 10))
sketch3.addConstraint(Sketcher.Constraint("Horizontal", 12))
sketch3.addConstraint(Sketcher.Constraint("Horizontal", 18))
sketch3.addConstraint(Sketcher.Constraint("Vertical", 20))
sketch3.addConstraint(Sketcher.Constraint("Vertical", 26))
sketch3.addConstraint(Sketcher.Constraint("Horizontal", 28))
sketch3.addConstraint(Sketcher.Constraint("Coincident", 1, 3, -1, 1))
sketch3.addConstraint(Sketcher.Constraint("Coincident", 3, 3, -1, 1))
sketch3.addConstraint(Sketcher.Constraint("Coincident", 5, 3, -1, 1))
sketch3.addConstraint(Sketcher.Constraint("Coincident", 7, 3, -1, 1))
sketch3.addConstraint(Sketcher.Constraint("Coincident", 9, 3, -1, 1))
sketch3.addConstraint(Sketcher.Constraint("Coincident", 11, 3, -1, 1))
sketch3.addConstraint(Sketcher.Constraint("Coincident", 13, 3, -1, 1))
sketch3.addConstraint(Sketcher.Constraint("Coincident", 15, 3, -1, 1))
sketch3.addConstraint(Sketcher.Constraint("Coincident", 17, 3, -1, 1))
sketch3.addConstraint(Sketcher.Constraint("Coincident", 19, 3, -1, 1))
sketch3.addConstraint(Sketcher.Constraint("Coincident", 21, 3, -1, 1))
sketch3.addConstraint(Sketcher.Constraint("Coincident", 23, 3, -1, 1))
sketch3.addConstraint(Sketcher.Constraint("Coincident", 25, 3, -1, 1))
sketch3.addConstraint(Sketcher.Constraint("Coincident", 27, 3, -1, 1))
sketch3.addConstraint(Sketcher.Constraint("Coincident", 29, 3, -1, 1))
sketch3.addConstraint(Sketcher.Constraint("Coincident", 31, 3, -1, 1))
sketch3.addConstraint(Sketcher.Constraint("Equal", 1, 5))
sketch3.addConstraint(Sketcher.Constraint("Equal", 3, 7))
sketch3.addConstraint(Sketcher.Constraint("Equal", 5, 9))
sketch3.addConstraint(Sketcher.Constraint("Equal", 7, 11))
sketch3.addConstraint(Sketcher.Constraint("Equal", 9, 13))
sketch3.addConstraint(Sketcher.Constraint("Equal", 11, 15))
sketch3.addConstraint(Sketcher.Constraint("Equal", 13, 17))
sketch3.addConstraint(Sketcher.Constraint("Equal", 15, 19))
sketch3.addConstraint(Sketcher.Constraint("Equal", 17, 21))
sketch3.addConstraint(Sketcher.Constraint("Equal", 19, 23))
sketch3.addConstraint(Sketcher.Constraint("Equal", 21, 25))
sketch3.addConstraint(Sketcher.Constraint("Equal", 23, 27))
sketch3.addConstraint(Sketcher.Constraint("Equal", 25, 29))
sketch3.addConstraint(Sketcher.Constraint("Equal", 27, 31))
sketch3.addConstraint(Sketcher.Constraint("Parallel", 0, 6))
sketch3.addConstraint(Sketcher.Constraint("Perpendicular", 6, 8))
sketch3.addConstraint(Sketcher.Constraint("Parallel", 8, 14))
sketch3.addConstraint(Sketcher.Constraint("Perpendicular", 14, 16))
sketch3.addConstraint(Sketcher.Constraint("Parallel", 16, 22))
sketch3.addConstraint(Sketcher.Constraint("Perpendicular", 22, 24))
sketch3.addConstraint(Sketcher.Constraint("Parallel", 24, 30))
sketch3.addConstraint(Sketcher.Constraint("Horizontal", 5, 2, 8, 2))
sketch3.addConstraint(Sketcher.Constraint("Horizontal", 4, 2, 9, 2))
sketch3.addConstraint(Sketcher.Constraint("Horizontal", 6, 2, 11, 1))
sketch3.addConstraint(Sketcher.Constraint("Horizontal", 2, 2, 12, 2))
sketch3.addConstraint(Sketcher.Constraint("Horizontal", 0, 2, 13, 2))
sketch3.addConstraint(Sketcher.Constraint("Horizontal", 21, 2, 24, 2))
sketch3.addConstraint(Sketcher.Constraint("Horizontal", 20, 2, 25, 2))
sketch3.addConstraint(Sketcher.Constraint("Horizontal", 18, 2, 28, 2))
sketch3.addConstraint(Sketcher.Constraint("Horizontal", 16, 2, 29, 2))
sketch3.addConstraint(Sketcher.Constraint("Vertical", 13, 2, 16, 2))
sketch3.addConstraint(Sketcher.Constraint("Vertical", 12, 2, 17, 2))
sketch3.addConstraint(Sketcher.Constraint("Vertical", 10, 2, 20, 2))
sketch3.addConstraint(Sketcher.Constraint("Vertical", 8, 2, 21, 2))
sketch3.addConstraint(Sketcher.Constraint("Equal", 28, 4))
sketch3.addConstraint(Sketcher.Constraint("Equal", 0, 6))
sketch3.addConstraint(Sketcher.Constraint("Radius", 1, Q("1.7 in")))
sketch3.addConstraint(Sketcher.Constraint("Radius", 3, Q("2.3 in")))
sketch3.addConstraint(Sketcher.Constraint("DistanceX", -1, 1, 1, 2, Q("42.0061 mm")))
sketch3.addConstraint(Sketcher.Constraint("DistanceX", 0, 2, 2, 2, Q("20.7839 mm")))
pocket2 = body.newObject("PartDesign::Pocket", "Pocket001")
pocket2.Profile = sketch3
pocket2.Length = Q("0.25 in")

doc.recompute()
